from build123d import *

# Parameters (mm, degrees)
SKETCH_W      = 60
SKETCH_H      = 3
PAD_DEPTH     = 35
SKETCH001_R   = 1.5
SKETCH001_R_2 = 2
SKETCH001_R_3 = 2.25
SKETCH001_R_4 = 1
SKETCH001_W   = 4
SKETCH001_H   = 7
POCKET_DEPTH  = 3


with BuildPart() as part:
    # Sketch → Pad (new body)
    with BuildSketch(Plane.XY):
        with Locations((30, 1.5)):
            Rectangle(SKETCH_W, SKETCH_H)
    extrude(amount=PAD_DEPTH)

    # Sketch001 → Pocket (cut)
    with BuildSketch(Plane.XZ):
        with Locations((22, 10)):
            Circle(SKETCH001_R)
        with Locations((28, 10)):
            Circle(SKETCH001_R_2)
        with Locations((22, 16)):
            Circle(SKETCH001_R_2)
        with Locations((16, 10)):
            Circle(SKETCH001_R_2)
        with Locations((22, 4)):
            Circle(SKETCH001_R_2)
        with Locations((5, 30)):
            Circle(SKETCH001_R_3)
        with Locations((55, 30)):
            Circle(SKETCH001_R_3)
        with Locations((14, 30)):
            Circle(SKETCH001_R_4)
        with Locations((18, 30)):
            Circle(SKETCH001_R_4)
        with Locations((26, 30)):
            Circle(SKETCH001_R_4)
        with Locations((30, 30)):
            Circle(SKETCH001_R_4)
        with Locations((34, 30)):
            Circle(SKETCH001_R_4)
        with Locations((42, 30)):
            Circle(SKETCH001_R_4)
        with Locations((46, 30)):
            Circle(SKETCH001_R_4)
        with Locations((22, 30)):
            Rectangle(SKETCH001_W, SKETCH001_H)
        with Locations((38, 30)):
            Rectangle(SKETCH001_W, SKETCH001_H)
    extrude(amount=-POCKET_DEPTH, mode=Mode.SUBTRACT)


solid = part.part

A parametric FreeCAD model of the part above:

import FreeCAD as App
import Part
import Sketcher
from FreeCAD import Vector
Q = App.Units.Quantity


def add_polygon(sketch, points):
    """Adds a closed chain of lines whose ends are joined by coincident constraints."""
    first, n = sketch.GeometryCount, len(points)
    for a, b in zip(points, points[1:] + points[:1]):
        sketch.addGeometry(Part.LineSegment(App.Vector(*a, 0), App.Vector(*b, 0)), False)
    for i in range(n):
        sketch.addConstraint(Sketcher.Constraint("Coincident", first + i, 2, first + (i + 1) % n, 1))

doc = App.newDocument("Part")
body = doc.addObject("PartDesign::Body", "Body")

# Sketch on XY plane
sketch1 = doc.addObject("Sketcher::SketchObject", "Sketch")
body.addObject(sketch1)
sketch1.AttachmentSupport = (doc.XY_Plane, [""])
sketch1.MapMode = "FlatFace"
add_polygon(sketch1, [(0, 3), (0, 0), (60, 0), (60, 3)])  # lines 0-3
sketch1.addConstraint(Sketcher.Constraint("Vertical", 0))
sketch1.addConstraint(Sketcher.Constraint("Horizontal", 1))
sketch1.addConstraint(Sketcher.Constraint("Vertical", 2))
sketch1.addConstraint(Sketcher.Constraint("Horizontal", 3))
sketch1.addConstraint(Sketcher.Constraint("Coincident", 0, 2, -1, 1))
sketch1.addConstraint(Sketcher.Constraint("DistanceX", 1, 1, 1, 2, Q("60 mm")))
sketch1.addConstraint(Sketcher.Constraint("DistanceY", 0, 2, 0, 1, Q("3 mm")))
pad1 = doc.addObject("PartDesign::Pad", "Pad")
body.addObject(pad1)
pad1.Profile = sketch1
pad1.Length = 35

# Sketch on XZ plane
sketch2 = doc.addObject("Sketcher::SketchObject", "Sketch001")
body.addObject(sketch2)
sketch2.AttachmentSupport = (doc.XZ_Plane, [""])
sketch2.MapMode = "FlatFace"
sketch2.addGeometry(Part.Circle(Vector(22, 10, 0), Vector(0, 0, 1), 1.5), False)  # 0
sketch2.addGeometry(Part.Circle(Vector(28, 10, 0), Vector(0, 0, 1), 2), False)  # 1
sketch2.addGeometry(Part.Circle(Vector(22, 16, 0), Vector(0, 0, 1), 2), False)  # 2
sketch2.addGeometry(Part.Circle(Vector(16, 10, 0), Vector(0, 0, 1), 2), False)  # 3
sketch2.addGeometry(Part.Circle(Vector(22, 4, 0), Vector(0, 0, 1), 2), False)  # 4
sketch2.addGeometry(Part.Circle(Vector(5, 30, 0), Vector(0, 0, 1), 2.2), False)  # 5
sketch2.addGeometry(Part.Circle(Vector(55, 30, 0), Vector(0, 0, 1), 2.2), False)  # 6
sketch2.addGeometry(Part.Circle(Vector(14, 30, 0), Vector(0, 0, 1), 1), False)  # 7
sketch2.addGeometry(Part.Circle(Vector(18, 30, 0), Vector(0, 0, 1), 1), False)  # 8
sketch2.addGeometry(Part.Circle(Vector(26, 30, 0), Vector(0, 0, 1), 1), False)  # 9
sketch2.addGeometry(Part.Circle(Vector(30, 30, 0), Vector(0, 0, 1), 1), False)  # 10
sketch2.addGeometry(Part.Circle(Vector(34, 30, 0), Vector(0, 0, 1), 1), False)  # 11
sketch2.addGeometry(Part.Circle(Vector(42, 30, 0), Vector(0, 0, 1), 1), False)  # 12
sketch2.addGeometry(Part.Circle(Vector(46, 30, 0), Vector(0, 0, 1), 1), False)  # 13
add_polygon(sketch2, [(20, 33.5), (20, 26.5), (24, 26.5), (24, 33.5)])  # lines 14-17
add_polygon(sketch2, [(36, 33.5), (36, 26.5), (40, 26.5), (40, 33.5)])  # lines 18-21
sketch2.addConstraint(Sketcher.Constraint("Vertical", 14))
sketch2.addConstraint(Sketcher.Constraint("Horizontal", 15))
sketch2.addConstraint(Sketcher.Constraint("Vertical", 16))
sketch2.addConstraint(Sketcher.Constraint("Horizontal", 17))
sketch2.addConstraint(Sketcher.Constraint("Vertical", 18))
sketch2.addConstraint(Sketcher.Constraint("Horizontal", 19))
sketch2.addConstraint(Sketcher.Constraint("Vertical", 20))
sketch2.addConstraint(Sketcher.Constraint("Horizontal", 21))
sketch2.addConstraint(Sketcher.Constraint("Equal", 1, 2))
sketch2.addConstraint(Sketcher.Constraint("Equal", 2, 3))
sketch2.addConstraint(Sketcher.Constraint("Equal", 3, 4))
sketch2.addConstraint(Sketcher.Constraint("Equal", 5, 6))
sketch2.addConstraint(Sketcher.Constraint("Equal", 7, 8))
sketch2.addConstraint(Sketcher.Constraint("Equal", 8, 9))
sketch2.addConstraint(Sketcher.Constraint("Equal", 9, 10))
sketch2.addConstraint(Sketcher.Constraint("Equal", 10, 11))
sketch2.addConstraint(Sketcher.Constraint("Equal", 11, 12))
sketch2.addConstraint(Sketcher.Constraint("Equal", 12, 13))
sketch2.addConstraint(Sketcher.Constraint("Horizontal", 0, 3, 1, 3))
sketch2.addConstraint(Sketcher.Constraint("Horizontal", 1, 3, 3, 3))
sketch2.addConstraint(Sketcher.Constraint("Horizontal", 5, 3, 6, 3))
sketch2.addConstraint(Sketcher.Constraint("Horizontal", 6, 3, 7, 3))
sketch2.addConstraint(Sketcher.Constraint("Horizontal", 7, 3, 8, 3))
sketch2.addConstraint(Sketcher.Constraint("Horizontal", 8, 3, 9, 3))
sketch2.addConstraint(Sketcher.Constraint("Horizontal", 9, 3, 10, 3))
sketch2.addConstraint(Sketcher.Constraint("Horizontal", 10, 3, 11, 3))
sketch2.addConstraint(Sketcher.Constraint("Horizontal", 11, 3, 12, 3))
sketch2.addConstraint(Sketcher.Constraint("Horizontal", 12, 3, 13, 3))
sketch2.addConstraint(Sketcher.Constraint("Horizontal", 15, 2, 18, 2))
sketch2.addConstraint(Sketcher.Constraint("Horizontal", 17, 2, 20, 2))
sketch2.addConstraint(Sketcher.Constraint("Vertical", 0, 3, 2, 3))
sketch2.addConstraint(Sketcher.Constraint("Vertical", 2, 3, 4, 3))
sketch2.addConstraint(Sketcher.Constraint("Equal", 17, 19))
sketch2.addConstraint(Sketcher.Constraint("Diameter", 0, Q("3 mm")))
sketch2.addConstraint(Sketcher.Constraint("Diameter", 1, Q("4 mm")))
sketch2.addConstraint(Sketcher.Constraint("Diameter", 7, Q("2 mm")))
sketch2.addConstraint(Sketcher.Constraint("Diameter", 5, Q("4.5 mm")))
sketch2.addConstraint(Sketcher.Constraint("DistanceX", 15, 1, 15, 2, Q("4 mm")))
sketch2.addConstraint(Sketcher.Constraint("DistanceY", 14, 2, 14, 1, Q("7 mm")))
sketch2.addConstraint(Sketcher.Constraint("DistanceX", -1, 1, 0, 3, Q("22 mm")))
sketch2.addConstraint(Sketcher.Constraint("DistanceY", -1, 1, 0, 3, Q("10 mm")))
sketch2.addConstraint(Sketcher.Constraint("DistanceX", -1, 1, 1, 3, Q("28 mm")))
sketch2.addConstraint(Sketcher.Constraint("DistanceY", -1, 1, 2, 3, Q("16 mm")))
sketch2.addConstraint(Sketcher.Constraint("DistanceX", -1, 1, 3, 3, Q("16 mm")))
sketch2.addConstraint(Sketcher.Constraint("DistanceY", -1, 1, 4, 3, Q("4 mm")))
sketch2.addConstraint(Sketcher.Constraint("DistanceX", -1, 1, 5, 3, Q("5 mm")))
sketch2.addConstraint(Sketcher.Constraint("DistanceY", -1, 1, 5, 3, Q("30 mm")))
sketch2.addConstraint(Sketcher.Constraint("DistanceX", -1, 1, 6, 3, Q("55 mm")))
sketch2.addConstraint(Sketcher.Constraint("DistanceX", -1, 1, 7, 3, Q("14 mm")))
sketch2.addConstraint(Sketcher.Constraint("DistanceX", -1, 1, 8, 3, Q("18 mm")))
sketch2.addConstraint(Sketcher.Constraint("DistanceX", -1, 1, 9, 3, Q("26 mm")))
sketch2.addConstraint(Sketcher.Constraint("DistanceX", -1, 1, 10, 3, Q("30 mm")))
sketch2.addConstraint(Sketcher.Constraint("DistanceX", -1, 1, 11, 3, Q("34 mm")))
sketch2.addConstraint(Sketcher.Constraint("DistanceX", -1, 1, 12, 3, Q("42 mm")))
sketch2.addConstraint(Sketcher.Constraint("DistanceX", -1, 1, 13, 3, Q("46 mm")))
sketch2.addConstraint(Sketcher.Constraint("DistanceX", -1, 1, 14, 2, Q("20 mm")))
sketch2.addConstraint(Sketcher.Constraint("DistanceX", -1, 1, 18, 2, Q("36 mm")))
sketch2.addConstraint(Sketcher.Constraint("DistanceY", -1, 1, 14, 2, Q("26.5 mm")))
pocket1 = doc.addObject("PartDesign::Pocket", "Pocket")
body.addObject(pocket1)
pocket1.Profile = sketch2
pocket1.Length = 3

doc.recompute()
